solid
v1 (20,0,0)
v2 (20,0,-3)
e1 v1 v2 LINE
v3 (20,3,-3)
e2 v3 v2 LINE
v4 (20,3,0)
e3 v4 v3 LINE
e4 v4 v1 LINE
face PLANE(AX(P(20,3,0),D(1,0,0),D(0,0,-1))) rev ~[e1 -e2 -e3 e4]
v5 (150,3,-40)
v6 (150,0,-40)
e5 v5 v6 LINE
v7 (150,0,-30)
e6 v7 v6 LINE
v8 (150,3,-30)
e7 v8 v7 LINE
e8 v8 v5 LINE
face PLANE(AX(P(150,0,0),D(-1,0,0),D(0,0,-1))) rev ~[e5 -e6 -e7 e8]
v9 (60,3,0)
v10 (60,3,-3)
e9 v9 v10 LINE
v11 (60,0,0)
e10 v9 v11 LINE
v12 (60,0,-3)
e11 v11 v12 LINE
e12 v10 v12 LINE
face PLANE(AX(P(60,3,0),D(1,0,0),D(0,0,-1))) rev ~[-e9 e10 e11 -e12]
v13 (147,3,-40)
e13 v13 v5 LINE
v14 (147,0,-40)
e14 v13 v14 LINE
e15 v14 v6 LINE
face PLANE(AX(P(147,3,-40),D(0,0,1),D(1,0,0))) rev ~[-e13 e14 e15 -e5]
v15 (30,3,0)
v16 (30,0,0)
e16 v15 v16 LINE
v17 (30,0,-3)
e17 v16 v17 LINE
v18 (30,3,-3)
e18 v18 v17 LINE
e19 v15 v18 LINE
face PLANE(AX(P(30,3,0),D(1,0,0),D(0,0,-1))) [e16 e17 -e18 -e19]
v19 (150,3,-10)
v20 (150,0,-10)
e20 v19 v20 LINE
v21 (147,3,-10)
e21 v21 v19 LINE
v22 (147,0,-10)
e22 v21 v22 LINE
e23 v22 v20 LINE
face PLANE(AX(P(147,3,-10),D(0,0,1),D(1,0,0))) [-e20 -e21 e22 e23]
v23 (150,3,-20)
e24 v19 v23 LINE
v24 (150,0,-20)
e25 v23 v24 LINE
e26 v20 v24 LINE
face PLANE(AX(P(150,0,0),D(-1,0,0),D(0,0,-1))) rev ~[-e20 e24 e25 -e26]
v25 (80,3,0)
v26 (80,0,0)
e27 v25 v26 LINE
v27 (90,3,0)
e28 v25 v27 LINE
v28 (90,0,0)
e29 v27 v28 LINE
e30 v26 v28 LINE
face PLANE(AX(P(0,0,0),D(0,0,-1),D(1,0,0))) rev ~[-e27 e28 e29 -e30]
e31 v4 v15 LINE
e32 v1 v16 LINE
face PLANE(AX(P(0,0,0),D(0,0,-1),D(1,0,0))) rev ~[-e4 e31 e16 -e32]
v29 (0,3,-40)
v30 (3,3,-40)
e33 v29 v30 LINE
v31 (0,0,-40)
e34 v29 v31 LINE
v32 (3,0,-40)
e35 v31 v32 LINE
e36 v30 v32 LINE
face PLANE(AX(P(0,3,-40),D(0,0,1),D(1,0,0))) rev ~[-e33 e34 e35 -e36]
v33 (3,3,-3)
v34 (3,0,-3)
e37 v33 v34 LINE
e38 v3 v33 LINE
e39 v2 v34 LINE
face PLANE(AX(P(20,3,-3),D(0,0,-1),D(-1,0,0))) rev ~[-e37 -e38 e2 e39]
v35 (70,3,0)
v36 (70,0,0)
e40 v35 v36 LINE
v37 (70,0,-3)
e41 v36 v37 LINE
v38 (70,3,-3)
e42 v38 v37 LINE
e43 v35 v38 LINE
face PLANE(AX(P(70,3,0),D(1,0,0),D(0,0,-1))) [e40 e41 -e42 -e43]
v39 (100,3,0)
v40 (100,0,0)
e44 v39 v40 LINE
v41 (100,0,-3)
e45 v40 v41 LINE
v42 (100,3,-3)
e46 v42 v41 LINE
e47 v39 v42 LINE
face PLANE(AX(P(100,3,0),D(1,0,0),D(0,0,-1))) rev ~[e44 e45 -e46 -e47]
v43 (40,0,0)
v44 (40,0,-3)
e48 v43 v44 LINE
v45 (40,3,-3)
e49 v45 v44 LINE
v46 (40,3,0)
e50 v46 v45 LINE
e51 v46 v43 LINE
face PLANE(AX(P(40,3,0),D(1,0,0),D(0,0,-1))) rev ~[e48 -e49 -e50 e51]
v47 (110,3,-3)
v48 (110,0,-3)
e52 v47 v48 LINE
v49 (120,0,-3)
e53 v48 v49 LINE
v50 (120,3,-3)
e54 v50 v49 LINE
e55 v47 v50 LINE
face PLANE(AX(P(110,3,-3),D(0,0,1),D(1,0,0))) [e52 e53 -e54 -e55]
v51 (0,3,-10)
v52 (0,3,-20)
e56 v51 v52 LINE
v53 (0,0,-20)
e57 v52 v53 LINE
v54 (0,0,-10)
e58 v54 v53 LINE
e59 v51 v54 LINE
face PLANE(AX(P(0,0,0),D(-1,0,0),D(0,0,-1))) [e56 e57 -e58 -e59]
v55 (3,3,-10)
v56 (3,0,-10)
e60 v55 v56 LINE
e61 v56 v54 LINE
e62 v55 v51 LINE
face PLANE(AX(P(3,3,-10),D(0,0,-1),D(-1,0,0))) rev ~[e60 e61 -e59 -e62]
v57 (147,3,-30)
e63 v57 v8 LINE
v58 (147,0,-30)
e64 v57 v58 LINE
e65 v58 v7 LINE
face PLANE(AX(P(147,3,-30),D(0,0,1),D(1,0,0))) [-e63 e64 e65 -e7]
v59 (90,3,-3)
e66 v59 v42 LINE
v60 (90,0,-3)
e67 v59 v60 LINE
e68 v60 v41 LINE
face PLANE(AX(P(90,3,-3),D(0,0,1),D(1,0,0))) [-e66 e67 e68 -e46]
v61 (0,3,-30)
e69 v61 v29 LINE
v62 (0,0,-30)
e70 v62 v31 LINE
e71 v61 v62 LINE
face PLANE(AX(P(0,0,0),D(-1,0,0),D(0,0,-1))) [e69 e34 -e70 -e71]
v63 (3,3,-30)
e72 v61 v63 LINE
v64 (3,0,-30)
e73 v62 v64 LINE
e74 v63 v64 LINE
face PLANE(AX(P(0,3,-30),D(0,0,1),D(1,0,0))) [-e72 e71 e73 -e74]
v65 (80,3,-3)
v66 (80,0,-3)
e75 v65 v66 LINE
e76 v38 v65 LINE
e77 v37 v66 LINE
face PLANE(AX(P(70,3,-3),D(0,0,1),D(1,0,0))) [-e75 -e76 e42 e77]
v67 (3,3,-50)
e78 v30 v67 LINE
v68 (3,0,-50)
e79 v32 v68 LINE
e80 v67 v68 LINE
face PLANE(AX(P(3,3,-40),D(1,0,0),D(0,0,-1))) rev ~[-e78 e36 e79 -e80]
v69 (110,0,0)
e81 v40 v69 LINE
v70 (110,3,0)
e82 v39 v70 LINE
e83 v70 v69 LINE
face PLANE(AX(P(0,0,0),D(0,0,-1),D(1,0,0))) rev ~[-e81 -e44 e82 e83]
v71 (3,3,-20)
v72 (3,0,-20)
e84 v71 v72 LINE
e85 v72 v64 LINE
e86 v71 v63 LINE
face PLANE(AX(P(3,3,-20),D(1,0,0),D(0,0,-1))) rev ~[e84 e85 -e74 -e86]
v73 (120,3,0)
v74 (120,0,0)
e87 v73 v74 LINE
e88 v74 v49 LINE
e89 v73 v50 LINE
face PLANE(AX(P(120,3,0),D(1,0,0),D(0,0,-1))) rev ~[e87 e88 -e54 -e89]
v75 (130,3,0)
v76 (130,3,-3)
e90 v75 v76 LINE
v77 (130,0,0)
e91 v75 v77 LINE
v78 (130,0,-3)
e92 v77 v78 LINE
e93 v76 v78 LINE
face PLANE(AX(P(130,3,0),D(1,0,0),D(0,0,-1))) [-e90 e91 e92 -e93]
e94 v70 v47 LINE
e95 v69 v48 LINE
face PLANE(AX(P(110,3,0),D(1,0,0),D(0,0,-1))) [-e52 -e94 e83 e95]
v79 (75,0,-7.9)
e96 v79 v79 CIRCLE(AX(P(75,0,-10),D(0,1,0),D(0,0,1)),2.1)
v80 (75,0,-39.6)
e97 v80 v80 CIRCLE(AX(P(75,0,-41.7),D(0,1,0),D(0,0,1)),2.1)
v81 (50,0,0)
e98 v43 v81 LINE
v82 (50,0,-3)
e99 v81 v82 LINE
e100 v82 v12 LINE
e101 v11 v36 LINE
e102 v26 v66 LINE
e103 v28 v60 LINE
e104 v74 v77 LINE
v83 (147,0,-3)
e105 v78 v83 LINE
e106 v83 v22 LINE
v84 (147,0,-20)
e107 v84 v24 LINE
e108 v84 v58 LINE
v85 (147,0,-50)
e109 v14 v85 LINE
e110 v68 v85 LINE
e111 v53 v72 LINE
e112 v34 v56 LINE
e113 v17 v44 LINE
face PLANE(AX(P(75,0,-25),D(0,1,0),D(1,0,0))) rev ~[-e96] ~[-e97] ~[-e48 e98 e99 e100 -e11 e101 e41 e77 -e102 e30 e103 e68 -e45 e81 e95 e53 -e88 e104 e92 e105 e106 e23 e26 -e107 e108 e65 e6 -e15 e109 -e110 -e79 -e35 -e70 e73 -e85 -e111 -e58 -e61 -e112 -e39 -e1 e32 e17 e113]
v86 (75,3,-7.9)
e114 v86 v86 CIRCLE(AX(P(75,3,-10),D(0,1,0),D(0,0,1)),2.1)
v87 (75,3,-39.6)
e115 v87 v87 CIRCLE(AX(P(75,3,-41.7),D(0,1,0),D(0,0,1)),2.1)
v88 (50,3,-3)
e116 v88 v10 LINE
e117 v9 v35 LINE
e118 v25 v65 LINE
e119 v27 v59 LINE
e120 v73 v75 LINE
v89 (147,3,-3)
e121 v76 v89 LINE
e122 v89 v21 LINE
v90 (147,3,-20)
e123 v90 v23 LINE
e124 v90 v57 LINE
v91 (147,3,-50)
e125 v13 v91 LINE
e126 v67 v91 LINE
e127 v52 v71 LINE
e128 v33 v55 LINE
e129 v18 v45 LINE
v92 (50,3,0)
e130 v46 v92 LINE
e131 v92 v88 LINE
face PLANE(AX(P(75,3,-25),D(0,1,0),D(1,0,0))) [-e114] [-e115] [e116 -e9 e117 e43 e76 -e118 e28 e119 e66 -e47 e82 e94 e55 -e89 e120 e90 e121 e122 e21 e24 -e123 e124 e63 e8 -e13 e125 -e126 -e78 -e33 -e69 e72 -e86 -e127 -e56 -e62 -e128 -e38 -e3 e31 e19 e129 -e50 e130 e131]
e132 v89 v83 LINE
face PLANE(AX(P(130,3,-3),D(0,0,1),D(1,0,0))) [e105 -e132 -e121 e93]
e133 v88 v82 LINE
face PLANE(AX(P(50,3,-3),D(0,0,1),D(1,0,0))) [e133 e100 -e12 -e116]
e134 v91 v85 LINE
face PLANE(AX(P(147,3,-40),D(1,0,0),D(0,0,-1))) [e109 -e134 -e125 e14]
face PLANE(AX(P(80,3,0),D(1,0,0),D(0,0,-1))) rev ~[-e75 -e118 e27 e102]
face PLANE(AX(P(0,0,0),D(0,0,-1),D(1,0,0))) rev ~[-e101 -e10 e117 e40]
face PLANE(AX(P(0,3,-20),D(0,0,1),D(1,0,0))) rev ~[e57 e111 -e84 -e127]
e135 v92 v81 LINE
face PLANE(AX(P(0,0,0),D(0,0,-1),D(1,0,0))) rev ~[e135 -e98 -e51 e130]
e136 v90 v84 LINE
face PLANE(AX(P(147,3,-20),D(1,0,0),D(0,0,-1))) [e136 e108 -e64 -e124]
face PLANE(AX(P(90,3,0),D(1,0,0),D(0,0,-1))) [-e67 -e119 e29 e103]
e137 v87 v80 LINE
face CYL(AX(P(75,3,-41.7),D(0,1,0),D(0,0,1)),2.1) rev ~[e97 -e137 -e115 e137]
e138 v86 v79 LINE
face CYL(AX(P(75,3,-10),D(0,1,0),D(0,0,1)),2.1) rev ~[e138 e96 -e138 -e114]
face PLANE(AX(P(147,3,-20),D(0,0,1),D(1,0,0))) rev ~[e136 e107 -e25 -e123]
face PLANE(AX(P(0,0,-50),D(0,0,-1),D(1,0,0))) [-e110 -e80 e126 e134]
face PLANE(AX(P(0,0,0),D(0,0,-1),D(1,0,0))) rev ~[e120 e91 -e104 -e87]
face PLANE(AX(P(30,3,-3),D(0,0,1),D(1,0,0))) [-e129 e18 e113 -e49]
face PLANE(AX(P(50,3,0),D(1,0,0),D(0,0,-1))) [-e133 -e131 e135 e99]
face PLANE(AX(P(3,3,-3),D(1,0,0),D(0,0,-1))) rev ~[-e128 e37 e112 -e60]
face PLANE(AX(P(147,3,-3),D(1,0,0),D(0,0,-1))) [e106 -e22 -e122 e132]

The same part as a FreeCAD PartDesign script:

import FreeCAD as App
import Part
import Sketcher
Q = App.Units.Quantity


def add_polygon(sketch, points):
    """Adds a closed chain of lines whose ends are joined by coincident constraints."""
    first, n = sketch.GeometryCount, len(points)
    for a, b in zip(points, points[1:] + points[:1]):
        sketch.addGeometry(Part.LineSegment(App.Vector(*a, 0), App.Vector(*b, 0)), False)
    for i in range(n):
        sketch.addConstraint(Sketcher.Constraint("Coincident", first + i, 2, first + (i + 1) % n, 1))

doc = App.newDocument("Part")
body = doc.addObject("PartDesign::Body", "Body")

sketch1 = body.newObject("Sketcher::SketchObject", "Sketch")
sketch1.AttachmentSupport = (doc.getObject("XZ_Plane"), [""])
sketch1.MapMode = "FlatFace"
add_polygon(sketch1, [(0, -50), (0, 0), (150, 0), (150, -50)])
sketch1.addConstraint([
    Sketcher.Constraint("Vertical", 0),
    Sketcher.Constraint("Horizontal", 1),
    Sketcher.Constraint("Vertical", 2),
    Sketcher.Constraint("Horizontal", 3),
    Sketcher.Constraint("Coincident", 0, 2, -1, 1),
    Sketcher.Constraint("DistanceX", 1, 1, 1, 2, Q("150 mm")),
    Sketcher.Constraint("DistanceY", 0, 1, 0, 2, Q("50 mm")),
])
pad1 = body.newObject("PartDesign::Pad", "Pad")
pad1.Profile = sketch1
pad1.Length = 3
pad1.Reversed = True

sketch2 = body.newObject("Sketcher::SketchObject", "Sketch001")
sketch2.AttachmentSupport = (doc.getObject("XZ_Plane"), [""])
sketch2.MapMode = "FlatFace"
sketch2.AttachmentOffset = App.Placement(App.Vector(0, 0, -3), App.Rotation())
add_polygon(sketch2, [(0, 0), (20, 0), (20, -3), (3, -3), (3, -10), (0, -10)])
add_polygon(sketch2, [(130, 0), (150, 0), (150, -10), (147, -10), (147, -3), (130, -3)])
add_polygon(sketch2, [(30, -3), (30, 0), (40, 0), (40, -3)])
add_polygon(sketch2, [(50, -3), (50, 0), (60, 0), (60, -3)])
add_polygon(sketch2, [(70, -3), (70, 0), (80, 0), (80, -3)])
add_polygon(sketch2, [(90, -3), (90, 0), (100, 0), (100, -3)])
add_polygon(sketch2, [(110, -3), (110, 0), (120, 0), (120, -3)])
add_polygon(sketch2, [(0, -30), (0, -20), (3, -20), (3, -30)])
add_polygon(sketch2, [(0, -50), (0, -40), (3, -40), (3, -50)])
add_polygon(sketch2, [(0, -70), (0, -60), (3, -60), (3, -70)])
add_polygon(sketch2, [(0, -90), (0, -80), (3, -80), (3, -90)])
add_polygon(sketch2, [(0, -110), (0, -100), (3, -100), (3, -110)])
add_polygon(sketch2, [(147, -110), (147, -100), (150, -100), (150, -110)])
add_polygon(sketch2, [(147, -90), (147, -80), (150, -80), (150, -90)])
add_polygon(sketch2, [(147, -70), (147, -60), (150, -60), (150, -70)])
add_polygon(sketch2, [(147, -50), (147, -40), (150, -40), (150, -50)])
add_polygon(sketch2, [(147, -30), (147, -20), (150, -20), (150, -30)])
sketch2.addConstraint([
    Sketcher.Constraint("Horizontal", 0),
    Sketcher.Constraint("Vertical", 1),
    Sketcher.Constraint("Horizontal", 2),
    Sketcher.Constraint("Vertical", 3),
    Sketcher.Constraint("Horizontal", 4),
    Sketcher.Constraint("Vertical", 5),
    Sketcher.Constraint("Horizontal", 6),
    Sketcher.Constraint("Vertical", 7),
    Sketcher.Constraint("Horizontal", 8),
    Sketcher.Constraint("Vertical", 9),
    Sketcher.Constraint("Horizontal", 10),
    Sketcher.Constraint("Vertical", 11),
    Sketcher.Constraint("Vertical", 12),
    Sketcher.Constraint("Horizontal", 13),
    Sketcher.Constraint("Vertical", 14),
    Sketcher.Constraint("Horizontal", 15),
    Sketcher.Constraint("Vertical", 16),
    Sketcher.Constraint("Horizontal", 17),
    Sketcher.Constraint("Vertical", 18),
    Sketcher.Constraint("Horizontal", 19),
    Sketcher.Constraint("Vertical", 20),
    Sketcher.Constraint("Horizontal", 21),
    Sketcher.Constraint("Vertical", 22),
    Sketcher.Constraint("Horizontal", 23),
    Sketcher.Constraint("Vertical", 24),
    Sketcher.Constraint("Horizontal", 25),
    Sketcher.Constraint("Vertical", 26),
    Sketcher.Constraint("Horizontal", 27),
    Sketcher.Constraint("Vertical", 28),
    Sketcher.Constraint("Horizontal", 29),
    Sketcher.Constraint("Vertical", 30),
    Sketcher.Constraint("Horizontal", 31),
    Sketcher.Constraint("Vertical", 32),
    Sketcher.Constraint("Horizontal", 33),
    Sketcher.Constraint("Vertical", 34),
    Sketcher.Constraint("Horizontal", 35),
    Sketcher.Constraint("Vertical", 36),
    Sketcher.Constraint("Horizontal", 37),
    Sketcher.Constraint("Vertical", 38),
    Sketcher.Constraint("Horizontal", 39),
    Sketcher.Constraint("Vertical", 40),
    Sketcher.Constraint("Horizontal", 41),
    Sketcher.Constraint("Vertical", 42),
    Sketcher.Constraint("Horizontal", 43),
    Sketcher.Constraint("Vertical", 44),
    Sketcher.Constraint("Horizontal", 45),
    Sketcher.Constraint("Vertical", 46),
    Sketcher.Constraint("Horizontal", 47),
    Sketcher.Constraint("Vertical", 48),
    Sketcher.Constraint("Horizontal", 49),
    Sketcher.Constraint("Vertical", 50),
    Sketcher.Constraint("Horizontal", 51),
    Sketcher.Constraint("Vertical", 52),
    Sketcher.Constraint("Horizontal", 53),
    Sketcher.Constraint("Vertical", 54),
    Sketcher.Constraint("Horizontal", 55),
    Sketcher.Constraint("Vertical", 56),
    Sketcher.Constraint("Horizontal", 57),
    Sketcher.Constraint("Vertical", 58),
    Sketcher.Constraint("Horizontal", 59),
    Sketcher.Constraint("Vertical", 60),
    Sketcher.Constraint("Horizontal", 61),
    Sketcher.Constraint("Vertical", 62),
    Sketcher.Constraint("Horizontal", 63),
    Sketcher.Constraint("Vertical", 64),
    Sketcher.Constraint("Horizontal", 65),
    Sketcher.Constraint("Vertical", 66),
    Sketcher.Constraint("Horizontal", 67),
    Sketcher.Constraint("Vertical", 68),
    Sketcher.Constraint("Horizontal", 69),
    Sketcher.Constraint("Vertical", 70),
    Sketcher.Constraint("Horizontal", 71),
    Sketcher.Constraint("Coincident", 5, 2, -1, 1),
    Sketcher.Constraint("PointOnObject", 6, 2, -1),
    Sketcher.Constraint("PointOnObject", 12, 2, -1),
    Sketcher.Constraint("PointOnObject", 16, 2, -1),
    Sketcher.Constraint("PointOnObject", 20, 2, -1),
    Sketcher.Constraint("PointOnObject", 24, 2, -1),
    Sketcher.Constraint("PointOnObject", 28, 2, -1),
    Sketcher.Constraint("PointOnObject", 32, 2, -2),
    Sketcher.Constraint("PointOnObject", 36, 2, -2),
    Sketcher.Constraint("PointOnObject", 40, 2, -2),
    Sketcher.Constraint("PointOnObject", 44, 2, -2),
    Sketcher.Constraint("PointOnObject", 48, 2, -2),
    Sketcher.Constraint("Horizontal", 4, 2, 7, 2),
    Sketcher.Constraint("Horizontal", 2, 2, 9, 2),
    Sketcher.Constraint("Horizontal", 10, 2, 14, 2),
    Sketcher.Constraint("Horizontal", 15, 2, 18, 2),
    Sketcher.Constraint("Horizontal", 19, 2, 22, 2),
    Sketcher.Constraint("Horizontal", 23, 2, 26, 2),
    Sketcher.Constraint("Horizontal", 27, 2, 30, 2),
    Sketcher.Constraint("Horizontal", 49, 2, 52, 2),
    Sketcher.Constraint("Horizontal", 51, 2, 54, 2),
    Sketcher.Constraint("Horizontal", 45, 2, 56, 2),
    Sketcher.Constraint("Horizontal", 47, 2, 58, 2),
    Sketcher.Constraint("Horizontal", 41, 2, 60, 2),
    Sketcher.Constraint("Horizontal", 43, 2, 62, 2),
    Sketcher.Constraint("Horizontal", 37, 2, 64, 2),
    Sketcher.Constraint("Horizontal", 39, 2, 66, 2),
    Sketcher.Constraint("Horizontal", 33, 2, 68, 2),
    Sketcher.Constraint("Horizontal", 35, 2, 70, 2),
    Sketcher.Constraint("Vertical", 3, 2, 33, 2),
    Sketcher.Constraint("Vertical", 34, 2, 37, 2),
    Sketcher.Constraint("Vertical", 38, 2, 41, 2),
    Sketcher.Constraint("Vertical", 42, 2, 45, 2),
    Sketcher.Constraint("Vertical", 46, 2, 49, 2),
    Sketcher.Constraint("Vertical", 9, 2, 52, 2),
    Sketcher.Constraint("Vertical", 7, 2, 53, 2),
    Sketcher.Constraint("Vertical", 55, 2, 56, 2),
    Sketcher.Constraint("Vertical", 54, 2, 57, 2),
    Sketcher.Constraint("Vertical", 59, 2, 60, 2),
    Sketcher.Constraint("Vertical", 58, 2, 61, 2),
    Sketcher.Constraint("Vertical", 63, 2, 64, 2),
    Sketcher.Constraint("Vertical", 62, 2, 65, 2),
    Sketcher.Constraint("Vertical", 67, 2, 68, 2),
    Sketcher.Constraint("Vertical", 66, 2, 69, 2),
    Sketcher.Constraint("Equal", 0, 6),
    Sketcher.Constraint("Equal", 4, 8),
    Sketcher.Constraint("Equal", 15, 17),
    Sketcher.Constraint("Equal", 19, 21),
    Sketcher.Constraint("Equal", 23, 25),
    Sketcher.Constraint("Equal", 27, 29),
    Sketcher.Constraint("Equal", 71, 1),
    Sketcher.Constraint("Equal", 31, 5),
    Sketcher.Constraint("Equal", 7, 32),
    Sketcher.Constraint("Equal", 34, 36),
    Sketcher.Constraint("Equal", 38, 40),
    Sketcher.Constraint("Equal", 42, 44),
    Sketcher.Constraint("Equal", 46, 48),
    Sketcher.Constraint("DistanceX", 0, 1, 0, 2, Q("20 mm")),
    Sketcher.Constraint("DistanceX", 2, 2, 2, 1, Q("17 mm")),
    Sketcher.Constraint("DistanceX", 13, 1, 13, 2, Q("10 mm")),
    Sketcher.Constraint("DistanceX", -1, 1, 6, 2, Q("150 mm")),
    Sketcher.Constraint("DistanceX", -1, 1, 12, 2, Q("30 mm")),
    Sketcher.Constraint("DistanceX", -1, 1, 16, 2, Q("50 mm")),
    Sketcher.Constraint("DistanceX", -1, 1, 20, 2, Q("70 mm")),
    Sketcher.Constraint("DistanceX", -1, 1, 24, 2, Q("90 mm")),
    Sketcher.Constraint("DistanceX", -1, 1, 28, 2, Q("110 mm")),
    Sketcher.Constraint("DistanceY", 32, 2, -1, 1, Q("20 mm")),
    Sketcher.Constraint("DistanceY", 36, 2, -1, 1, Q("40 mm")),
    Sketcher.Constraint("DistanceY", 40, 2, -1, 1, Q("60 mm")),
    Sketcher.Constraint("DistanceY", 44, 2, -1, 1, Q("80 mm")),
    Sketcher.Constraint("DistanceY", 48, 2, -1, 1, Q("100 mm")),
])
pocket1 = body.newObject("PartDesign::Pocket", "Pocket")
pocket1.Profile = sketch2
pocket1.Length = 3
pocket1.Reversed = True

sketch3 = body.newObject("Sketcher::SketchObject", "Sketch002")
sketch3.AttachmentSupport = (doc.getObject("XZ_Plane"), [""])
sketch3.MapMode = "FlatFace"
sketch3.AttachmentOffset = App.Placement(App.Vector(0, 0, -3), App.Rotation())
sketch3.addGeometry([
    Part.Circle(App.Vector(75, -41.7, 0), App.Vector(0, 0, 1), 2.1),
    Part.Circle(App.Vector(75, -10, 0), App.Vector(0, 0, 1), 2.1),
], False)
sketch3.addConstraint([
    Sketcher.Constraint("Equal", 0, 1),
    Sketcher.Constraint("Vertical", 0, 3, 1, 3),
    Sketcher.Constraint("Diameter", 0, Q("4.2 mm")),
    Sketcher.Constraint("DistanceX", -1, 1, 0, 3, Q("75 mm")),
    Sketcher.Constraint("DistanceY", 1, 3, -1, 1, Q("10 mm")),
    Sketcher.Constraint("DistanceY", 0, 3, -1, 1, Q("41.7 mm")),
])
pocket2 = body.newObject("PartDesign::Pocket", "Pocket001")
pocket2.Profile = sketch3
pocket2.Length = 3
pocket2.Reversed = True

doc.recompute()
